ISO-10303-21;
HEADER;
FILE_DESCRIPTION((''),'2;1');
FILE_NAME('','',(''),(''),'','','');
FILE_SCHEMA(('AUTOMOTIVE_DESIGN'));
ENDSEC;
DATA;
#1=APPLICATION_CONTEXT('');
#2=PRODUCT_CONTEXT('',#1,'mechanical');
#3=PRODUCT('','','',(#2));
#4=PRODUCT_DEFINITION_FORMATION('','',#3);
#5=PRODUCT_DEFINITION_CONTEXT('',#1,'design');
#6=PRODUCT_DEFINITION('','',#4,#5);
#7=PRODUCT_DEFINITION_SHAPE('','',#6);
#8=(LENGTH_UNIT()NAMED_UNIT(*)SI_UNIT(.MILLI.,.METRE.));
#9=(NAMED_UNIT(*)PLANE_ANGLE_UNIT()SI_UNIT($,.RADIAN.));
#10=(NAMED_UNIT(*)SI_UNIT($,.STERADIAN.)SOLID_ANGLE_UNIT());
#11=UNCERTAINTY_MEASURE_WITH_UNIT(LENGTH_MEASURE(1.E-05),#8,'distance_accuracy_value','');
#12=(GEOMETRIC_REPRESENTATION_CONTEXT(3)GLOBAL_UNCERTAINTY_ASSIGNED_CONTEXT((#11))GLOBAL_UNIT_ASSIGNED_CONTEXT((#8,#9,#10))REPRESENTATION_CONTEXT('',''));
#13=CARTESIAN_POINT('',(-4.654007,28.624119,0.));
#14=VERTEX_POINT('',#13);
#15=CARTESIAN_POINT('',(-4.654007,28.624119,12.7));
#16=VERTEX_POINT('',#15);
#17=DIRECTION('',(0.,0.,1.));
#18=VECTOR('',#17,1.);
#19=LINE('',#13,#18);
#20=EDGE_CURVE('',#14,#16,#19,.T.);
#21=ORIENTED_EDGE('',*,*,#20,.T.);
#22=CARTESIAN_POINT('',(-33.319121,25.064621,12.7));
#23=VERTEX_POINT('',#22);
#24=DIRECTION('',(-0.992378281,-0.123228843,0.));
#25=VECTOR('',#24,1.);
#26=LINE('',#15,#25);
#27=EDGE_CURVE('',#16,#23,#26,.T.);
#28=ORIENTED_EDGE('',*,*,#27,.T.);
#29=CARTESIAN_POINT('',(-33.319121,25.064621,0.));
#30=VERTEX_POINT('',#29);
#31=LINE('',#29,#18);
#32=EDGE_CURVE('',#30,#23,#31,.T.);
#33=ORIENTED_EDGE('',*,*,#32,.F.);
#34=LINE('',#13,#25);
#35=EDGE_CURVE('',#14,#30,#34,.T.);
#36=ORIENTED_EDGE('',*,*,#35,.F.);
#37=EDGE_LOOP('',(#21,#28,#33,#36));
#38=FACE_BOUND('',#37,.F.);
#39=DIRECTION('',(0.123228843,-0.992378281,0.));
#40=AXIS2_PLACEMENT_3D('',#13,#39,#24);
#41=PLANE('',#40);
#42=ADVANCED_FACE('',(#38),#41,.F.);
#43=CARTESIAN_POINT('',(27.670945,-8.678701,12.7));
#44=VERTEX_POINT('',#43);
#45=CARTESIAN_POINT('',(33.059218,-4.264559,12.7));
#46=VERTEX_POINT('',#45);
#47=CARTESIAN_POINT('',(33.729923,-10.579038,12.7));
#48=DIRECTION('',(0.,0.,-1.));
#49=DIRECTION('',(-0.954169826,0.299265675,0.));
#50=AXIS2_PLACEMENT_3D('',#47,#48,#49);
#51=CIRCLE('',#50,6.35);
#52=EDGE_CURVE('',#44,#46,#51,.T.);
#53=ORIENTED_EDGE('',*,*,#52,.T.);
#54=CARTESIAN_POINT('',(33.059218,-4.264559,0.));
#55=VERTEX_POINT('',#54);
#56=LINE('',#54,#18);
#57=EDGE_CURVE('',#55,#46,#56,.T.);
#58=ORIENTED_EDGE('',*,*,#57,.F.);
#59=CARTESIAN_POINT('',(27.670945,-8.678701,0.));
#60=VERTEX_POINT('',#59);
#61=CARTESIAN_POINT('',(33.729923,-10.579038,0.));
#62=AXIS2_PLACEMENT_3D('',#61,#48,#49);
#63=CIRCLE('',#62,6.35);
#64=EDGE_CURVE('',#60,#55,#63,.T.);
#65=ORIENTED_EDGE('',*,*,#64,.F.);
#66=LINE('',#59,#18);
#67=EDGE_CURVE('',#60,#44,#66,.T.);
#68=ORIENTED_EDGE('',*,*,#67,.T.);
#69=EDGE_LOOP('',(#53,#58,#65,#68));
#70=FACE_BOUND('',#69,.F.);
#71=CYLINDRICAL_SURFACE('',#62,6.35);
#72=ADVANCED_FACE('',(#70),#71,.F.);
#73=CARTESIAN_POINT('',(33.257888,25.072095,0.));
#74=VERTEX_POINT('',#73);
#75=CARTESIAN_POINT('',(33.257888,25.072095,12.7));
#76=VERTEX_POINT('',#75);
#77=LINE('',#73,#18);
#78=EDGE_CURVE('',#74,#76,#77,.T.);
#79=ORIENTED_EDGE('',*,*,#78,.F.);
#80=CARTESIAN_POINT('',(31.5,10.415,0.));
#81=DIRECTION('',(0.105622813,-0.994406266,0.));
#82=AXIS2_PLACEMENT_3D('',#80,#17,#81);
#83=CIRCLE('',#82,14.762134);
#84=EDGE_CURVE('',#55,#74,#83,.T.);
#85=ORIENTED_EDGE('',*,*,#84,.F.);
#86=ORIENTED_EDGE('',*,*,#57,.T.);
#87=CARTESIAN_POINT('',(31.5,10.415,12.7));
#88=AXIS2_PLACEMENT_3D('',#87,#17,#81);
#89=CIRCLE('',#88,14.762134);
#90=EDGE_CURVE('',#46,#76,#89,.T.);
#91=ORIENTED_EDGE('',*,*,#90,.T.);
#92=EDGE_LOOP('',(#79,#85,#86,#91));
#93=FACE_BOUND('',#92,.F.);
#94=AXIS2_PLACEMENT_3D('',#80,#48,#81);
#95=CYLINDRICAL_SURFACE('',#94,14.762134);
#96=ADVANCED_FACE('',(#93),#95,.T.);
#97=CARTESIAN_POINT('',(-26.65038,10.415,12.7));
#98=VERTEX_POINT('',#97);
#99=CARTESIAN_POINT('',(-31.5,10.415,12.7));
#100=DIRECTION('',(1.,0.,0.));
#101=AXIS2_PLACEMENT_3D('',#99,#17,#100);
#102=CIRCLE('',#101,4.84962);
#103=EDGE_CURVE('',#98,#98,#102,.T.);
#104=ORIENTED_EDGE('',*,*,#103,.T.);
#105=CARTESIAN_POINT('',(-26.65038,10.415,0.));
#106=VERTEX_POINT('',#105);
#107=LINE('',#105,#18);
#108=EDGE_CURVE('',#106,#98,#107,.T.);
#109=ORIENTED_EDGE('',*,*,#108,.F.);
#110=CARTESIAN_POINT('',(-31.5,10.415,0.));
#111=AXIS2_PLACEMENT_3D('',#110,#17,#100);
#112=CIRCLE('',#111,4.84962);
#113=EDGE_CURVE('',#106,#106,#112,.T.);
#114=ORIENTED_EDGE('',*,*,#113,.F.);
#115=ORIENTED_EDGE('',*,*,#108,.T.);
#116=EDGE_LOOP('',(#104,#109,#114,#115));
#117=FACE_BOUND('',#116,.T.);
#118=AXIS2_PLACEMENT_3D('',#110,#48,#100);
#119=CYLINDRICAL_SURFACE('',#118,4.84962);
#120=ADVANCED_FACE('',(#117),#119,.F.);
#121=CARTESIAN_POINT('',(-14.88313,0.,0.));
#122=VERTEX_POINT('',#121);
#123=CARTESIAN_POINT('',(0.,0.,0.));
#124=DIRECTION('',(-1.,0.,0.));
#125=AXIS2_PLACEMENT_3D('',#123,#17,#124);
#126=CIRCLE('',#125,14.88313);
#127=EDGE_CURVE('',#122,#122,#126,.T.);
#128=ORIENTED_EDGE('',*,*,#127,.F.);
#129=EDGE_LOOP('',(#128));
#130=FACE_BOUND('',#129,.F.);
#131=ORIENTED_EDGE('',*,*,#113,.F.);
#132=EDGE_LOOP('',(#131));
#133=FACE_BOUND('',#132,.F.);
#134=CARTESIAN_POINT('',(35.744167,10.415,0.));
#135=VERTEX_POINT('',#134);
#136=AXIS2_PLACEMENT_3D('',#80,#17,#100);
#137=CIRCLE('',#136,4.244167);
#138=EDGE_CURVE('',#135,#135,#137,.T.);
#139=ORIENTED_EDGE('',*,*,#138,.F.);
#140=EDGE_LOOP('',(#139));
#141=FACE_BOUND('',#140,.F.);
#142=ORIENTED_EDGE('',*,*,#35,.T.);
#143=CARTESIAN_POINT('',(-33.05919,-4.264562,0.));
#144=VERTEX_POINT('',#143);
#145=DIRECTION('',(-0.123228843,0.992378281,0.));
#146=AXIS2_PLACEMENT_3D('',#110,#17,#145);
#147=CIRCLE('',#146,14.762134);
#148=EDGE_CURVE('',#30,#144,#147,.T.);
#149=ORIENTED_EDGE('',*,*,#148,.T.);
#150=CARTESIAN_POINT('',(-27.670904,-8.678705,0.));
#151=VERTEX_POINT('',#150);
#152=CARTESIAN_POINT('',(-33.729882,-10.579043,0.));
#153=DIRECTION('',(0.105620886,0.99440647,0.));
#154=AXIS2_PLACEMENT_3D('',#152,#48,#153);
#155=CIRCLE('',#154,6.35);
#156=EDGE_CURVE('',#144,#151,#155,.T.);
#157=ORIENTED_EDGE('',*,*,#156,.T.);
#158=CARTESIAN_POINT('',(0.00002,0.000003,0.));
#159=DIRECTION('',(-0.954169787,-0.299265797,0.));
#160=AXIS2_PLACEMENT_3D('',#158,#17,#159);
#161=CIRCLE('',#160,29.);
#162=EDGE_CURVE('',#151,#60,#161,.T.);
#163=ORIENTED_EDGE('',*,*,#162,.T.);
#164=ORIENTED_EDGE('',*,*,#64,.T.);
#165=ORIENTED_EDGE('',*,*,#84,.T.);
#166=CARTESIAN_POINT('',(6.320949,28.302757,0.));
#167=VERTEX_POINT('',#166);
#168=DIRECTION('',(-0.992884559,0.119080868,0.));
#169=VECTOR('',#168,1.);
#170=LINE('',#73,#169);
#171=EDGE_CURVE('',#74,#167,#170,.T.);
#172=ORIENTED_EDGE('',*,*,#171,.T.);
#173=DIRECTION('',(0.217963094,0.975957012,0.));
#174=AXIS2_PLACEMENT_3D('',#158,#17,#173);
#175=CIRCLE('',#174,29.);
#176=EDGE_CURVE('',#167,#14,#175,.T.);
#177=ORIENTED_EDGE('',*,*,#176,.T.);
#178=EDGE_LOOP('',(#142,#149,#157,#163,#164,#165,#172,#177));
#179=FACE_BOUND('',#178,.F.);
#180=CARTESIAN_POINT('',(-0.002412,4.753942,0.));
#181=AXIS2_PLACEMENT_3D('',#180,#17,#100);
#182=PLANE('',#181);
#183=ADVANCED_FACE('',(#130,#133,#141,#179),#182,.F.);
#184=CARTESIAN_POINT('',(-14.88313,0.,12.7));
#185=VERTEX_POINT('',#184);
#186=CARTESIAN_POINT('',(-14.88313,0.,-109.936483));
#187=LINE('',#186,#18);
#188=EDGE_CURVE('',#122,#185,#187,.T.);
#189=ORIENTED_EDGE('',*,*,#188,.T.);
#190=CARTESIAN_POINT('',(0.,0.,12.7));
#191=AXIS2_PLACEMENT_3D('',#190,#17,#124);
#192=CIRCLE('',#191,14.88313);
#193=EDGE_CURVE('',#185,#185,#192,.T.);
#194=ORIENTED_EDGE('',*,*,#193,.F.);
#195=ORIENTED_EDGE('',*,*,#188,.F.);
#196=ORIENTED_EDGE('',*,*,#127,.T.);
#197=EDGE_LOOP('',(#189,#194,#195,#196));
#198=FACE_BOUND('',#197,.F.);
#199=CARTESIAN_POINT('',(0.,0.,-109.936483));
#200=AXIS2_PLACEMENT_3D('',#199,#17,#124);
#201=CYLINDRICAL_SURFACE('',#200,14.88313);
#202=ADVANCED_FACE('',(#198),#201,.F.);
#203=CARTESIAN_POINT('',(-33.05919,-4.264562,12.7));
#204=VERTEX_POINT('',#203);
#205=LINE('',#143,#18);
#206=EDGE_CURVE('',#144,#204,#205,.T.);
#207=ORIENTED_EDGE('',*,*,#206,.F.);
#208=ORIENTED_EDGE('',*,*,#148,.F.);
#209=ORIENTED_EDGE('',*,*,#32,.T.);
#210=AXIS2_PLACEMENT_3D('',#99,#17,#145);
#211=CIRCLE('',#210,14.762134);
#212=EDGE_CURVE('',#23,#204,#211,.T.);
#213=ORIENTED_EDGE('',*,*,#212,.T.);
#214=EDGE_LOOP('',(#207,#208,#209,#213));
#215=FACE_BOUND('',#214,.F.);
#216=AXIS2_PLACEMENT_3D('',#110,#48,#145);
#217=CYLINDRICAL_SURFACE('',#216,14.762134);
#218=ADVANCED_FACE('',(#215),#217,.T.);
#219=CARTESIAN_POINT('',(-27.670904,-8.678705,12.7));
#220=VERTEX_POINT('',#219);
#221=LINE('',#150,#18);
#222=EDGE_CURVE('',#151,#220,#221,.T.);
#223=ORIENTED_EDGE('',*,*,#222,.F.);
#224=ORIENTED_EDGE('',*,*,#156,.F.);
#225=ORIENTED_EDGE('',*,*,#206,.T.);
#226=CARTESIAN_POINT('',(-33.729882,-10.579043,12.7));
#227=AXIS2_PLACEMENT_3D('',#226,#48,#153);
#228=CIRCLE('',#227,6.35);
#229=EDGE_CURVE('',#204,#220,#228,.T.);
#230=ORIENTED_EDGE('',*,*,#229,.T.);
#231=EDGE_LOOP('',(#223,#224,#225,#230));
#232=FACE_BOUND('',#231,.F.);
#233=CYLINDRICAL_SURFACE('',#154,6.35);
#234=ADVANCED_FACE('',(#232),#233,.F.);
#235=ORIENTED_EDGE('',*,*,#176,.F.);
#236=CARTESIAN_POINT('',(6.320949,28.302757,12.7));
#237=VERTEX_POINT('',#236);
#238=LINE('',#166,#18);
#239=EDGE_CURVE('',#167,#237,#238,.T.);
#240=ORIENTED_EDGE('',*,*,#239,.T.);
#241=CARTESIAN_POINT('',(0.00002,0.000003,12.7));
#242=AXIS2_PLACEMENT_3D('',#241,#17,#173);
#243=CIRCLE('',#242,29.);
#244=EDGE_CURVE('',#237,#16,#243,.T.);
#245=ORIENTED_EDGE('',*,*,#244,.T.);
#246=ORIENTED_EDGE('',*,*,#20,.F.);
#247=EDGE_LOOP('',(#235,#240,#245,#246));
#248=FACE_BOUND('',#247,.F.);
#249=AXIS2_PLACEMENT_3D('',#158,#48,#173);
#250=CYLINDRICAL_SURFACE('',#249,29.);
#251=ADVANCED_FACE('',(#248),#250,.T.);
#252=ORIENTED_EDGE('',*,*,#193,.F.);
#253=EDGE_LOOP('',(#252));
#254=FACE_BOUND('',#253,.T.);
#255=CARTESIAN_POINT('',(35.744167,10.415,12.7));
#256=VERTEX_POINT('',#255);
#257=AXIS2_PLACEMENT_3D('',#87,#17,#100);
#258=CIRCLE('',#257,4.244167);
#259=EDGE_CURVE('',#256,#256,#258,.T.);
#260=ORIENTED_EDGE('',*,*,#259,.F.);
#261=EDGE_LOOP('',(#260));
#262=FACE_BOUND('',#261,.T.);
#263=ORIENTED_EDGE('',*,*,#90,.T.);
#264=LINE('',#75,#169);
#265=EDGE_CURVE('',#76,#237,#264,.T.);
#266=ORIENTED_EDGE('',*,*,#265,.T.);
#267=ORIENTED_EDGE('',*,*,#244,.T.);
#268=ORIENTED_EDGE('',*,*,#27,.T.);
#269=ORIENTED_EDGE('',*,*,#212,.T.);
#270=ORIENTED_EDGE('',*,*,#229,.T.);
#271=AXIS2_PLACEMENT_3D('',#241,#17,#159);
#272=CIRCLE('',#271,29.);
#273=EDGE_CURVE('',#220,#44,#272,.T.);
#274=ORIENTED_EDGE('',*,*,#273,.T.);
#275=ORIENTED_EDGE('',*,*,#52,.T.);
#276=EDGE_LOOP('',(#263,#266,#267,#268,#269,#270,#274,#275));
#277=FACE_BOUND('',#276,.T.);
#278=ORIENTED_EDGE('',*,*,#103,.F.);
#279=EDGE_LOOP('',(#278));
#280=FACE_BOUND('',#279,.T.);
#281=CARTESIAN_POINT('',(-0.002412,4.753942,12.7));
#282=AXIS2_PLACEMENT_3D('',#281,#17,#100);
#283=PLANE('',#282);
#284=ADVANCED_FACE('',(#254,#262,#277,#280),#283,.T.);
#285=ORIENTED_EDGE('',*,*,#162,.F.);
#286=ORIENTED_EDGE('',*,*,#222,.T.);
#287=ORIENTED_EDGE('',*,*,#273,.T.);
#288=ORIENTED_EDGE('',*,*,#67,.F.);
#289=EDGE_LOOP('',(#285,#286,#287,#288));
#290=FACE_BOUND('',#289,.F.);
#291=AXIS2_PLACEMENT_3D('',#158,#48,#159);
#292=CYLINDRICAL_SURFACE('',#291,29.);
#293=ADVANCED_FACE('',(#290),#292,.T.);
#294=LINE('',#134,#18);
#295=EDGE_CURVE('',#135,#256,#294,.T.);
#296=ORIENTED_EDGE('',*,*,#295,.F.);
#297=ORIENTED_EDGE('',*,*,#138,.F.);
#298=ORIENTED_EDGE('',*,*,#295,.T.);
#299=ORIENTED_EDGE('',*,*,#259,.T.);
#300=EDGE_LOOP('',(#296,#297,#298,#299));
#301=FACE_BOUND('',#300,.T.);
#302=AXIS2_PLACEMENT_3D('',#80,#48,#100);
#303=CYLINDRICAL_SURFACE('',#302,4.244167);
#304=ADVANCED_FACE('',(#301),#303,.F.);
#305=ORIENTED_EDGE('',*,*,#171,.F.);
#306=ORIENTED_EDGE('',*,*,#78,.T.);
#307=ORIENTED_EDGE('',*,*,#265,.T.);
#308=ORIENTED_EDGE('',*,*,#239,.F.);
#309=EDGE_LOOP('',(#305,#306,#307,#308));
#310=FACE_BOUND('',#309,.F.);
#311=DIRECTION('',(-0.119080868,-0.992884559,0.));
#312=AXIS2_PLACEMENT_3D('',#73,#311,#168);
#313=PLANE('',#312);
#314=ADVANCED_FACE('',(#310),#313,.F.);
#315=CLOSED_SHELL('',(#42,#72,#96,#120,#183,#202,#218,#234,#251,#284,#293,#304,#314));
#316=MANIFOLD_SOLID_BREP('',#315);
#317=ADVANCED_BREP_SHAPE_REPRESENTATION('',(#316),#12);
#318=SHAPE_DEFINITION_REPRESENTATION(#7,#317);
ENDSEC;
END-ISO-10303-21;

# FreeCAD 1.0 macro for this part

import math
import FreeCAD as App
import Part
import Sketcher

doc = App.newDocument("Part")
body = doc.addObject("PartDesign::Body", "Body")

# Sketch on XY plane
sketch1 = body.newObject("Sketcher::SketchObject", "Sketch")
sketch1.AttachmentSupport = (doc.getObject("XY_Plane"), [""])
sketch1.MapMode = "FlatFace"
sketch1.addGeometry(Part.LineSegment(App.Vector(-4.7, 28.6, 0), App.Vector(-33.3, 25.1, 0)), False)
sketch1.addGeometry(Part.ArcOfCircle(Part.Circle(App.Vector(-31.5, 10.4, 0), App.Vector(0, 0, 1), 14.8), math.radians(97), math.radians(264)), False)
sketch1.addGeometry(Part.ArcOfCircle(Part.Circle(App.Vector(-33.7, -10.6, 0), App.Vector(0, 0, 1), 6.3), math.radians(17), math.radians(84)), False)
sketch1.addGeometry(Part.ArcOfCircle(Part.Circle(App.Vector(0, 0, 0), App.Vector(0, 0, 1), 29), math.radians(-163), math.radians(-17)), False)
sketch1.addGeometry(Part.ArcOfCircle(Part.Circle(App.Vector(33.7, -10.6, 0), App.Vector(0, 0, 1), 6.3), math.radians(96), math.radians(163)), False)
sketch1.addGeometry(Part.ArcOfCircle(Part.Circle(App.Vector(31.5, 10.4, 0), App.Vector(0, 0, 1), 14.8), math.radians(-84), math.radians(83)), False)
sketch1.addGeometry(Part.LineSegment(App.Vector(33.3, 25.1, 0), App.Vector(6.3, 28.3, 0)), False)
sketch1.addGeometry(Part.ArcOfCircle(Part.Circle(App.Vector(0, 0, 0), App.Vector(0, 0, 1), 29), math.radians(77), math.radians(99)), False)
sketch1.addGeometry(Part.Circle(App.Vector(-31.5, 10.4, 0), App.Vector(0, 0, 1), 4.8), False)
sketch1.addGeometry(Part.Circle(App.Vector(31.5, 10.4, 0), App.Vector(0, 0, 1), 4.2), False)
sketch1.addConstraint(Sketcher.Constraint("Tangent", 0, 2, 1, 1))
sketch1.addConstraint(Sketcher.Constraint("Tangent", 1, 2, 2, 2))
sketch1.addConstraint(Sketcher.Constraint("Tangent", 2, 1, 3, 1))
sketch1.addConstraint(Sketcher.Constraint("Tangent", 3, 2, 4, 2))
sketch1.addConstraint(Sketcher.Constraint("Tangent", 4, 1, 5, 1))
sketch1.addConstraint(Sketcher.Constraint("Tangent", 5, 2, 6, 1))
sketch1.addConstraint(Sketcher.Constraint("Coincident", 6, 2, 7, 1))
sketch1.addConstraint(Sketcher.Constraint("Coincident", 7, 2, 0, 1))
sketch1.addConstraint(Sketcher.Constraint("Coincident", 7, 3, 3, 3))
sketch1.addConstraint(Sketcher.Constraint("Coincident", 8, 3, 1, 3))
sketch1.addConstraint(Sketcher.Constraint("Coincident", 9, 3, 5, 3))
sketch1.addConstraint(Sketcher.Constraint("Equal", 2, 4))
sketch1.addConstraint(Sketcher.Constraint("Equal", 1, 5))
sketch1.addConstraint(Sketcher.Constraint("Equal", 3, 7))
sketch1.addConstraint(Sketcher.Constraint("Symmetric", 1, 3, 5, 3, -2))
sketch1.addConstraint(Sketcher.Constraint("Radius", 3, 29.0))
sketch1.addConstraint(Sketcher.Constraint("Radius", 2, 6.35))
sketch1.addConstraint(Sketcher.Constraint("DistanceX", 1, 3, 5, 3, 63.0))
sketch1.addConstraint(Sketcher.Constraint("Diameter", 8, 9.699239))
sketch1.addConstraint(Sketcher.Constraint("Diameter", 9, 8.488333))
sketch1.addConstraint(Sketcher.Constraint("DistanceY", -1, 1, 1, 3, 10.415))
sketch1.addConstraint(Sketcher.Constraint("Radius", 1, 14.762134))
sketch1.addConstraint(Sketcher.Constraint("DistanceY", 3, 2, -1, 1, 8.678701))
sketch1.addConstraint(Sketcher.Constraint("DistanceX", 2, 3, 3, 3, 33.729902))
sketch1.addConstraint(Sketcher.Constraint("DistanceY", 0, 2, 7, 2, 3.559498))
sketch1.addConstraint(Sketcher.Constraint("Distance", 6, 27.12998))
pad1 = body.newObject("PartDesign::Pad", "Pad")
pad1.Profile = sketch1
pad1.Length = 12.7

# Sketch on XY plane
sketch2 = body.newObject("Sketcher::SketchObject", "Sketch001")
sketch2.AttachmentSupport = (doc.getObject("XY_Plane"), [""])
sketch2.MapMode = "FlatFace"
sketch2.addGeometry(Part.Circle(App.Vector(0, 0, 0), App.Vector(0, 0, 1), 15), False)
sketch2.addConstraint(Sketcher.Constraint("Coincident", 0, 3, -1, 1))
sketch2.addConstraint(Sketcher.Constraint("Diameter", 0, 29.76626))
doc.recompute()
hole = body.newObject("PartDesign::Hole", "Hole")
hole.Profile = sketch2
hole.ThreadType = "None"
hole.Diameter = 29.76626
hole.DepthType = "ThroughAll"
hole.Reversed = True

doc.recompute()
